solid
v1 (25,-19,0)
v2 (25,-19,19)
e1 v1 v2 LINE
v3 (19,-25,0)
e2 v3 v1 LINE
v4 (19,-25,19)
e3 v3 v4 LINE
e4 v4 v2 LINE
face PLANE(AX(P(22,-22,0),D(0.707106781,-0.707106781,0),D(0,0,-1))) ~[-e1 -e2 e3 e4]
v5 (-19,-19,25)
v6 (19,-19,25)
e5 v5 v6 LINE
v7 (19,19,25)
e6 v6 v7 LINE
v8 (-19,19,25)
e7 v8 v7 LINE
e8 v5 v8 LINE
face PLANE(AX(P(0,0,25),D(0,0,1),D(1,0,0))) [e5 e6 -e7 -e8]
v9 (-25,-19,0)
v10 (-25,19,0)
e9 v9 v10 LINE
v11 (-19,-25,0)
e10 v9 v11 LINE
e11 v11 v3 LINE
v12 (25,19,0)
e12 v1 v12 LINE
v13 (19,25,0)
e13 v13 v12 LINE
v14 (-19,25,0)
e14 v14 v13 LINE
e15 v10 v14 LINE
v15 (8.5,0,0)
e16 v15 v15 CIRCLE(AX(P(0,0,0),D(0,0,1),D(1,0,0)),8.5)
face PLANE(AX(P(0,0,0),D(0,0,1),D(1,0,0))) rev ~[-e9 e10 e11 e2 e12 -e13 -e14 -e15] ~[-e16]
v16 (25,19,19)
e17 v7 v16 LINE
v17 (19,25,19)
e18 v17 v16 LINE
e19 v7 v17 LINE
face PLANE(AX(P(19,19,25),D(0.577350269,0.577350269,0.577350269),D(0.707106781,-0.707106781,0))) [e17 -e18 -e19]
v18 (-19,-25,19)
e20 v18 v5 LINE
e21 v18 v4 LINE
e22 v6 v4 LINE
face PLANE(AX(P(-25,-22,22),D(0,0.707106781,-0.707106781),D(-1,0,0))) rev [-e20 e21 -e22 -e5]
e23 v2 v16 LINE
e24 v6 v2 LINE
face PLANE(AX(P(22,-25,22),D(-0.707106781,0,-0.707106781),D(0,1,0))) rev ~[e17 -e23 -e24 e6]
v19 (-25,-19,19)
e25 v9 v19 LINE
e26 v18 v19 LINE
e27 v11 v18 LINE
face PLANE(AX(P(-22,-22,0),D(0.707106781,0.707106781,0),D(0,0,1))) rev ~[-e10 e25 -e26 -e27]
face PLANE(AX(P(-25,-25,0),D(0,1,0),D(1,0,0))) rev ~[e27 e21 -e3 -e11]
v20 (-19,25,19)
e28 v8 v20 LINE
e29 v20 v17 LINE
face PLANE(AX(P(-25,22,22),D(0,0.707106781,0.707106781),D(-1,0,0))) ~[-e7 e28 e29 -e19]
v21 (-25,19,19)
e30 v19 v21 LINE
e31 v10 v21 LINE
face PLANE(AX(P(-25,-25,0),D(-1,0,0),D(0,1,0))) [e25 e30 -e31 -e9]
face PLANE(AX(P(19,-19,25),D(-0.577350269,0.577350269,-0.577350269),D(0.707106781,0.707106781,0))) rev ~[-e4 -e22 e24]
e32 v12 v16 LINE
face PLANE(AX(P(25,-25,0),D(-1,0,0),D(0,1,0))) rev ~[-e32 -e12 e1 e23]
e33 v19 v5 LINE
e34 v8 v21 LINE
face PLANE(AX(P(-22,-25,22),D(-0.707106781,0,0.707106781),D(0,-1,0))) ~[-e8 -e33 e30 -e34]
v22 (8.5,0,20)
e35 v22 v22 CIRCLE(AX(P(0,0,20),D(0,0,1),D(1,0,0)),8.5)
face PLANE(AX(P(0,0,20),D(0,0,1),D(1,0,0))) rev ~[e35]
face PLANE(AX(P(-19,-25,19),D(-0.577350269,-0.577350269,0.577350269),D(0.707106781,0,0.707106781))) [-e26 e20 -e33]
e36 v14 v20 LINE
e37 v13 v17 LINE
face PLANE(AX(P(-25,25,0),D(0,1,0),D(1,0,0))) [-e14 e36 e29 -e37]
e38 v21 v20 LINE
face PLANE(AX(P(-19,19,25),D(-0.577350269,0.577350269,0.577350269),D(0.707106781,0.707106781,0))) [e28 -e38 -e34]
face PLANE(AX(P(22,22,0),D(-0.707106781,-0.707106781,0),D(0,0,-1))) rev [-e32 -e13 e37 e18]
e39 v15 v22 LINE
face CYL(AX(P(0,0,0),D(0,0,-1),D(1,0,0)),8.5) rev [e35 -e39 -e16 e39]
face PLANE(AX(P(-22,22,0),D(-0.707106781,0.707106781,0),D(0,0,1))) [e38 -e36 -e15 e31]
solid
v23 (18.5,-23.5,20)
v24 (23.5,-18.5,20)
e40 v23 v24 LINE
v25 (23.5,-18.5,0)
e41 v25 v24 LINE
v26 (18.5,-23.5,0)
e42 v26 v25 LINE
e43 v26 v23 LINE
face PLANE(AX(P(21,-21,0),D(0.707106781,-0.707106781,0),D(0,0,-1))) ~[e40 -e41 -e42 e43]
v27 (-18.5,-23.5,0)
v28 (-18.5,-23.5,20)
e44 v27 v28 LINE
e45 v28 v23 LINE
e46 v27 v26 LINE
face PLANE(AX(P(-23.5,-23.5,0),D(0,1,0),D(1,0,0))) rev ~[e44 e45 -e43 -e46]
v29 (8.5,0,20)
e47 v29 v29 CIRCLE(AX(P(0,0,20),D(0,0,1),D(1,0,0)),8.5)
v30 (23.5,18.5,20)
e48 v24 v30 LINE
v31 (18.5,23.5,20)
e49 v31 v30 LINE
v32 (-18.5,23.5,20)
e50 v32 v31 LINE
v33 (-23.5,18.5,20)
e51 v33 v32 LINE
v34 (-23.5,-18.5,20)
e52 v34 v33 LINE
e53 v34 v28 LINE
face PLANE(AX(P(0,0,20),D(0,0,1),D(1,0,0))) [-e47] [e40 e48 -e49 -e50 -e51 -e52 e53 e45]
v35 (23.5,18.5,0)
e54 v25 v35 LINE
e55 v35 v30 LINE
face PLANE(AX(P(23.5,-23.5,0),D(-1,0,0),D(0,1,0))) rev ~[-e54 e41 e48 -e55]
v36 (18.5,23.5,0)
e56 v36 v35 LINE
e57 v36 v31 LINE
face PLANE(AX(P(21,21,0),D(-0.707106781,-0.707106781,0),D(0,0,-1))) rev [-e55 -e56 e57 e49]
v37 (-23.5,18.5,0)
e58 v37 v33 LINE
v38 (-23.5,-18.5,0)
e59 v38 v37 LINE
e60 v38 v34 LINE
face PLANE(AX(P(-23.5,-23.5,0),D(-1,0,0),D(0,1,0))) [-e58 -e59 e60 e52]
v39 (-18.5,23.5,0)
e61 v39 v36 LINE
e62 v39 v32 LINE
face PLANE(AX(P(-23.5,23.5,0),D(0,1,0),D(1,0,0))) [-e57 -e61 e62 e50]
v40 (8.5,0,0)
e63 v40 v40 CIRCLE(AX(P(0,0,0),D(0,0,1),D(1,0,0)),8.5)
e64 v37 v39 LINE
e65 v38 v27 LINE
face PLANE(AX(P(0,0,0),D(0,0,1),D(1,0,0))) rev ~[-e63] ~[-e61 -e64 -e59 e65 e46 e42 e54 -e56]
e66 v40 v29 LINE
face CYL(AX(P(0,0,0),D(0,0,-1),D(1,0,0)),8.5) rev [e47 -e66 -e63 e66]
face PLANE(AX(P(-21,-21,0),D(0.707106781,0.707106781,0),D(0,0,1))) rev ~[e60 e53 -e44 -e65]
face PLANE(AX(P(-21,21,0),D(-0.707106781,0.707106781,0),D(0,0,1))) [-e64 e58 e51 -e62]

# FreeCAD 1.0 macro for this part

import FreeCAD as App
import Part
import Sketcher
from FreeCAD import Vector
Q = App.Units.Quantity


def edges_at(feature, points):
    """Names of the edges that pass closest to the given points."""
    edges = feature.Shape.Edges
    near = lambda p: min(range(len(edges)), key=lambda i: edges[i].distToShape(Part.Vertex(*p))[0])
    return sorted({f"Edge{near(p) + 1}" for p in points})


def add_polygon(sketch, points):
    """Adds a closed chain of lines whose ends are joined by coincident constraints."""
    first, n = sketch.GeometryCount, len(points)
    for a, b in zip(points, points[1:] + points[:1]):
        sketch.addGeometry(Part.LineSegment(App.Vector(*a, 0), App.Vector(*b, 0)), False)
    for i in range(n):
        sketch.addConstraint(Sketcher.Constraint("Coincident", first + i, 2, first + (i + 1) % n, 1))

doc = App.newDocument("Part")
body = doc.addObject("PartDesign::Body", "Body")

# Sketch on XY plane
sketch1 = body.newObject("Sketcher::SketchObject", "Sketch")
sketch1.AttachmentSupport = (doc.getObject("XY_Plane"), [""])
sketch1.MapMode = "FlatFace"
add_polygon(sketch1, [(-25, 25), (-25, -25), (25, -25), (25, 25)])  # lines 0-3
sketch1.addConstraint(Sketcher.Constraint("Vertical", 0))
sketch1.addConstraint(Sketcher.Constraint("Horizontal", 1))
sketch1.addConstraint(Sketcher.Constraint("Vertical", 2))
sketch1.addConstraint(Sketcher.Constraint("Horizontal", 3))
sketch1.addConstraint(Sketcher.Constraint("Symmetric", 0, 2, 2, 2, -1, 1))
sketch1.addConstraint(Sketcher.Constraint("Equal", 3, 0))
sketch1.addConstraint(Sketcher.Constraint("DistanceX", 1, 1, 1, 2, Q("50 mm")))
pad1 = body.newObject("PartDesign::Pad", "Pad")
pad1.Profile = sketch1
pad1.Length = 25

# Sketch on XY plane
sketch2 = body.newObject("Sketcher::SketchObject", "Sketch001")
sketch2.AttachmentSupport = (doc.getObject("XY_Plane"), [""])
sketch2.MapMode = "FlatFace"
sketch2.addGeometry(Part.Circle(Vector(0, 0, 0), Vector(0, 0, 1), 8), False)
sketch2.addConstraint(Sketcher.Constraint("Coincident", 0, 3, -1, 1))
sketch2.addConstraint(Sketcher.Constraint("Diameter", 0, Q("17 mm")))
pocket1 = body.newObject("PartDesign::Pocket", "Pocket")
pocket1.Profile = sketch2
pocket1.Length = 20
pocket1.Reversed = True
doc.recompute()

chamfer = body.newObject("PartDesign::Chamfer", "Chamfer")
chamfer.Base = (pocket1, edges_at(pocket1, [
    (-25, 25, 12.5),
    (-25, 0, 25),
    (-25, -25, 12.5),
    (25, -25, 12.5),
    (25, 25, 12.5),
    (0, 25, 25),
    (0, -25, 25),
    (25, 0, 25),
]))
chamfer.Size = 6
body2 = doc.addObject("PartDesign::Body", "Body001")

# Sketch on XY plane
sketch3 = body2.newObject("Sketcher::SketchObject", "Sketch002")
sketch3.AttachmentSupport = (doc.getObject("XY_Plane001"), [""])
sketch3.MapMode = "FlatFace"
add_polygon(sketch3, [(-24, 24), (-24, -24), (24, -24), (24, 24)])  # lines 0-3
sketch3.addGeometry(Part.Circle(Vector(0, 0, 0), Vector(0, 0, 1), 8), False)  # 4
sketch3.addConstraint(Sketcher.Constraint("Vertical", 0))
sketch3.addConstraint(Sketcher.Constraint("Horizontal", 1))
sketch3.addConstraint(Sketcher.Constraint("Vertical", 2))
sketch3.addConstraint(Sketcher.Constraint("Horizontal", 3))
sketch3.addConstraint(Sketcher.Constraint("Coincident", 4, 3, -1, 1))
sketch3.addConstraint(Sketcher.Constraint("Symmetric", 0, 2, 2, 2, -1, 1))
sketch3.addConstraint(Sketcher.Constraint("Equal", 3, 0))
sketch3.addConstraint(Sketcher.Constraint("Diameter", 4, Q("17 mm")))
sketch3.addConstraint(Sketcher.Constraint("DistanceX", 1, 1, 1, 2, Q("47 mm")))
pad2 = body2.newObject("PartDesign::Pad", "Pad001")
pad2.Profile = sketch3
pad2.Length = 20
doc.recompute()

chamfer2 = body2.newObject("PartDesign::Chamfer", "Chamfer001")
chamfer2.Base = (pad2, edges_at(pad2, [
    (23.5, 23.5, 10),
    (-23.5, 23.5, 10),
    (-23.5, -23.5, 10),
    (23.5, -23.5, 10),
]))
chamfer2.Size = 5

doc.recompute()
